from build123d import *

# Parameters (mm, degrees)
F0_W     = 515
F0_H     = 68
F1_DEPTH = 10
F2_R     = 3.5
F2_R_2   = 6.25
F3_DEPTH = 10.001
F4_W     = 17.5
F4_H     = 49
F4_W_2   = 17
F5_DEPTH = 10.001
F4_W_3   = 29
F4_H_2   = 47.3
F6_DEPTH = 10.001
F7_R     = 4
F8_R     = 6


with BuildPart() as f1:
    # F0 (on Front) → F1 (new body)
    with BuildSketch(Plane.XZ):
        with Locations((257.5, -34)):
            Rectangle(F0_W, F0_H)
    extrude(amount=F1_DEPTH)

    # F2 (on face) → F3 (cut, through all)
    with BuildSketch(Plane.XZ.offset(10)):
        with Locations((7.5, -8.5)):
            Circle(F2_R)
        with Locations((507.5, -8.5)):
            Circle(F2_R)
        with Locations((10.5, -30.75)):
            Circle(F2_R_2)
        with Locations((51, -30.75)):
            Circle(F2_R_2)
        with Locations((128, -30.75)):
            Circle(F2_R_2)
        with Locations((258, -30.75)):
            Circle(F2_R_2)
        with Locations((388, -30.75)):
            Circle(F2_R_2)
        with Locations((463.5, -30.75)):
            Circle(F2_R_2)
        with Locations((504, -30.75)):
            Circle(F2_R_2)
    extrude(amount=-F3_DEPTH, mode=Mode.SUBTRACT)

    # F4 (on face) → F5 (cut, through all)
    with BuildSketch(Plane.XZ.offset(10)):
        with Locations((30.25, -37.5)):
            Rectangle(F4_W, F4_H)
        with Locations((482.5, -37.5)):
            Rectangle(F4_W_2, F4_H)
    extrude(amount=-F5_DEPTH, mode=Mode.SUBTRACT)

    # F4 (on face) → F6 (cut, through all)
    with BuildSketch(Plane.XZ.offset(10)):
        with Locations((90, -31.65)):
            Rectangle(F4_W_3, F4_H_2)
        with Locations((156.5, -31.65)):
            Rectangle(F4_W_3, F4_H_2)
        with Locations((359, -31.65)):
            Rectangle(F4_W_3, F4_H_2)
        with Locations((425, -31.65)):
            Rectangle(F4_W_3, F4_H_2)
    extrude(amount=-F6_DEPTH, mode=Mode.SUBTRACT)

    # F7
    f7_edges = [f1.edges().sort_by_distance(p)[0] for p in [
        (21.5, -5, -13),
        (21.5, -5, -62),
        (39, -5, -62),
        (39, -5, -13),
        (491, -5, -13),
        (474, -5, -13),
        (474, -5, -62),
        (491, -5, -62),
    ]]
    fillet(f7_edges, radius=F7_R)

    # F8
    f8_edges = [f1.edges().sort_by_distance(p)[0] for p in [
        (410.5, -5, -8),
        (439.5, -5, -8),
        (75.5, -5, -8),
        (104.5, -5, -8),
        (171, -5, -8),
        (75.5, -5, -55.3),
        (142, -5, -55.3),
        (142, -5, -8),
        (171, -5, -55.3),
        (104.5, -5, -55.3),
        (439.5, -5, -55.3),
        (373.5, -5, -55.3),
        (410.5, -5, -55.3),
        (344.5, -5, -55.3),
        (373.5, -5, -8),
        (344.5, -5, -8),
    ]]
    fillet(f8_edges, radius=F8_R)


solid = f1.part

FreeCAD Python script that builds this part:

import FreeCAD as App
import Part
import Sketcher
from FreeCAD import Vector


def edges_at(feature, points):
    """Names of the edges that pass closest to the given points."""
    edges = feature.Shape.Edges
    near = lambda p: min(range(len(edges)), key=lambda i: edges[i].distToShape(Part.Vertex(*p))[0])
    return sorted({f"Edge{near(p) + 1}" for p in points})

doc = App.newDocument("Part")
body = doc.addObject("PartDesign::Body", "Body")

# Sketch on XZ plane
sketch1 = body.newObject("Sketcher::SketchObject", "Sketch")
sketch1.AttachmentSupport = (doc.getObject("XZ_Plane"), [""])
sketch1.MapMode = "FlatFace"
sketch1.addGeometry([
    Part.LineSegment(Vector(0, 0, 0), Vector(0, -68, 0)),
    Part.LineSegment(Vector(0, -68, 0), Vector(515, -68, 0)),
    Part.LineSegment(Vector(515, -68, 0), Vector(515, 0, 0)),
    Part.LineSegment(Vector(515, 0, 0), Vector(0, 0, 0)),
], False)
sketch1.addConstraint([
    Sketcher.Constraint("Coincident", 0, 2, 1, 1),
    Sketcher.Constraint("Coincident", 1, 2, 2, 1),
    Sketcher.Constraint("Coincident", 2, 2, 3, 1),
    Sketcher.Constraint("Coincident", 3, 2, 0, 1),
    Sketcher.Constraint("Vertical", 0),
    Sketcher.Constraint("Horizontal", 1),
    Sketcher.Constraint("Vertical", 2),
    Sketcher.Constraint("Horizontal", 3),
    Sketcher.Constraint("Coincident", 3, 2, -1, 1),
    Sketcher.Constraint("DistanceX", 1, 1, 1, 2, 515.0),
    Sketcher.Constraint("DistanceY", 0, 2, 0, 1, 68.0),
])
pad1 = body.newObject("PartDesign::Pad", "Pad")
pad1.Profile = sketch1
pad1.Length = 10

# Sketch on XZ plane
sketch2 = body.newObject("Sketcher::SketchObject", "Sketch001")
sketch2.AttachmentSupport = (doc.getObject("XZ_Plane"), [""])
sketch2.MapMode = "FlatFace"
sketch2.AttachmentOffset = App.Placement(Vector(0, 0, 10), App.Rotation())
sketch2.addGeometry([
    Part.Circle(Vector(7.5, -8.5, 0), Vector(0, 0, 1), 3.5),  # 0
    Part.Circle(Vector(507.5, -8.5, 0), Vector(0, 0, 1), 3.5),  # 1
    Part.Circle(Vector(10.5, -30.8, 0), Vector(0, 0, 1), 6.2),  # 2
    Part.Circle(Vector(51, -30.8, 0), Vector(0, 0, 1), 6.2),  # 3
    Part.Circle(Vector(128, -30.8, 0), Vector(0, 0, 1), 6.2),  # 4
    Part.Circle(Vector(258, -30.8, 0), Vector(0, 0, 1), 6.2),  # 5
    Part.Circle(Vector(388, -30.8, 0), Vector(0, 0, 1), 6.2),  # 6
    Part.Circle(Vector(463.5, -30.8, 0), Vector(0, 0, 1), 6.2),  # 7
    Part.Circle(Vector(504, -30.8, 0), Vector(0, 0, 1), 6.2),  # 8
], False)
sketch2.addConstraint([
    Sketcher.Constraint("Equal", 0, 1),
    Sketcher.Constraint("Equal", 2, 3),
    Sketcher.Constraint("Equal", 3, 4),
    Sketcher.Constraint("Equal", 4, 5),
    Sketcher.Constraint("Equal", 5, 6),
    Sketcher.Constraint("Equal", 6, 7),
    Sketcher.Constraint("Equal", 7, 8),
    Sketcher.Constraint("Horizontal", 0, 3, 1, 3),
    Sketcher.Constraint("Horizontal", 2, 3, 3, 3),
    Sketcher.Constraint("Horizontal", 3, 3, 4, 3),
    Sketcher.Constraint("Horizontal", 4, 3, 5, 3),
    Sketcher.Constraint("Horizontal", 5, 3, 6, 3),
    Sketcher.Constraint("Horizontal", 6, 3, 7, 3),
    Sketcher.Constraint("Horizontal", 7, 3, 8, 3),
    Sketcher.Constraint("Diameter", 0, 7.0),
    Sketcher.Constraint("Diameter", 2, 12.5),
    Sketcher.Constraint("DistanceX", -1, 1, 3, 3, 51.0),
    Sketcher.Constraint("DistanceX", -1, 1, 4, 3, 128.0),
    Sketcher.Constraint("DistanceX", -1, 1, 5, 3, 258.0),
    Sketcher.Constraint("DistanceX", -1, 1, 6, 3, 388.0),
    Sketcher.Constraint("DistanceX", -1, 1, 8, 3, 504.0),
    Sketcher.Constraint("DistanceX", 0, 3, 1, 3, 500.0),
    Sketcher.Constraint("DistanceX", 0, 3, 2, 3, 3.0),
    Sketcher.Constraint("DistanceX", 7, 3, 1, 3, 44.0),
    Sketcher.Constraint("DistanceX", -1, 1, 0, 3, 7.5),
    Sketcher.Constraint("DistanceY", 0, 3, -1, 1, 8.5),
    Sketcher.Constraint("DistanceY", 2, 3, -1, 1, 30.75),
])
pocket1 = body.newObject("PartDesign::Pocket", "Pocket")
pocket1.Profile = sketch2
pocket1.Type = "ThroughAll"

# Sketch on XZ plane
sketch3 = body.newObject("Sketcher::SketchObject", "Sketch002")
sketch3.AttachmentSupport = (doc.getObject("XZ_Plane"), [""])
sketch3.MapMode = "FlatFace"
sketch3.AttachmentOffset = App.Placement(Vector(0, 0, 10), App.Rotation())
sketch3.addGeometry([
    Part.LineSegment(Vector(22, -13, 0), Vector(22, -62, 0)),  # 0
    Part.LineSegment(Vector(22, -62, 0), Vector(39, -62, 0)),  # 1
    Part.LineSegment(Vector(39, -62, 0), Vector(39, -13, 0)),  # 2
    Part.LineSegment(Vector(39, -13, 0), Vector(22, -13, 0)),  # 3
    Part.LineSegment(Vector(474, -13, 0), Vector(474, -62, 0)),  # 4
    Part.LineSegment(Vector(474, -62, 0), Vector(491, -62, 0)),  # 5
    Part.LineSegment(Vector(491, -62, 0), Vector(491, -13, 0)),  # 6
    Part.LineSegment(Vector(491, -13, 0), Vector(474, -13, 0)),  # 7
], False)
sketch3.addConstraint([
    Sketcher.Constraint("Coincident", 0, 2, 1, 1),
    Sketcher.Constraint("Coincident", 1, 2, 2, 1),
    Sketcher.Constraint("Coincident", 2, 2, 3, 1),
    Sketcher.Constraint("Coincident", 3, 2, 0, 1),
    Sketcher.Constraint("Coincident", 4, 2, 5, 1),
    Sketcher.Constraint("Coincident", 5, 2, 6, 1),
    Sketcher.Constraint("Coincident", 6, 2, 7, 1),
    Sketcher.Constraint("Coincident", 7, 2, 4, 1),
    Sketcher.Constraint("Vertical", 0),
    Sketcher.Constraint("Horizontal", 1),
    Sketcher.Constraint("Vertical", 2),
    Sketcher.Constraint("Horizontal", 3),
    Sketcher.Constraint("Vertical", 4),
    Sketcher.Constraint("Horizontal", 5),
    Sketcher.Constraint("Vertical", 6),
    Sketcher.Constraint("Horizontal", 7),
    Sketcher.Constraint("Horizontal", 1, 2, 4, 2),
    Sketcher.Constraint("Horizontal", 3, 2, 6, 2),
    Sketcher.Constraint("DistanceX", 5, 1, 5, 2, 17.0),
    Sketcher.Constraint("DistanceY", 0, 2, 0, 1, 49.0),
    Sketcher.Constraint("DistanceX", 1, 1, 1, 2, 17.5),
    Sketcher.Constraint("DistanceY", 0, 2, -1, 1, 62.0),
    Sketcher.Constraint("DistanceX", -1, 1, 1, 2, 39.0),
    Sketcher.Constraint("DistanceX", -1, 1, 4, 2, 474.0),
])
pocket2 = body.newObject("PartDesign::Pocket", "Pocket001")
pocket2.Profile = sketch3
pocket2.Type = "ThroughAll"

# Sketch on XZ plane
sketch4 = body.newObject("Sketcher::SketchObject", "Sketch003")
sketch4.AttachmentSupport = (doc.getObject("XZ_Plane"), [""])
sketch4.MapMode = "FlatFace"
sketch4.AttachmentOffset = App.Placement(Vector(0, 0, 10), App.Rotation())
sketch4.addGeometry([
    Part.LineSegment(Vector(76, -8, 0), Vector(76, -55, 0)),  # 0
    Part.LineSegment(Vector(76, -55, 0), Vector(104, -55, 0)),  # 1
    Part.LineSegment(Vector(104, -55, 0), Vector(104, -8, 0)),  # 2
    Part.LineSegment(Vector(104, -8, 0), Vector(76, -8, 0)),  # 3
    Part.LineSegment(Vector(142, -8, 0), Vector(142, -55, 0)),  # 4
    Part.LineSegment(Vector(142, -55, 0), Vector(171, -55, 0)),  # 5
    Part.LineSegment(Vector(171, -55, 0), Vector(171, -8, 0)),  # 6
    Part.LineSegment(Vector(171, -8, 0), Vector(142, -8, 0)),  # 7
    Part.LineSegment(Vector(344, -8, 0), Vector(344, -55, 0)),  # 8
    Part.LineSegment(Vector(344, -55, 0), Vector(374, -55, 0)),  # 9
    Part.LineSegment(Vector(374, -55, 0), Vector(374, -8, 0)),  # 10
    Part.LineSegment(Vector(374, -8, 0), Vector(344, -8, 0)),  # 11
    Part.LineSegment(Vector(410, -8, 0), Vector(410, -55, 0)),  # 12
    Part.LineSegment(Vector(410, -55, 0), Vector(440, -55, 0)),  # 13
    Part.LineSegment(Vector(440, -55, 0), Vector(440, -8, 0)),  # 14
    Part.LineSegment(Vector(440, -8, 0), Vector(410, -8, 0)),  # 15
], False)
sketch4.addConstraint([
    Sketcher.Constraint("Coincident", 0, 2, 1, 1),
    Sketcher.Constraint("Coincident", 1, 2, 2, 1),
    Sketcher.Constraint("Coincident", 2, 2, 3, 1),
    Sketcher.Constraint("Coincident", 3, 2, 0, 1),
    Sketcher.Constraint("Coincident", 4, 2, 5, 1),
    Sketcher.Constraint("Coincident", 5, 2, 6, 1),
    Sketcher.Constraint("Coincident", 6, 2, 7, 1),
    Sketcher.Constraint("Coincident", 7, 2, 4, 1),
    Sketcher.Constraint("Coincident", 8, 2, 9, 1),
    Sketcher.Constraint("Coincident", 9, 2, 10, 1),
    Sketcher.Constraint("Coincident", 10, 2, 11, 1),
    Sketcher.Constraint("Coincident", 11, 2, 8, 1),
    Sketcher.Constraint("Coincident", 12, 2, 13, 1),
    Sketcher.Constraint("Coincident", 13, 2, 14, 1),
    Sketcher.Constraint("Coincident", 14, 2, 15, 1),
    Sketcher.Constraint("Coincident", 15, 2, 12, 1),
    Sketcher.Constraint("Vertical", 0),
    Sketcher.Constraint("Horizontal", 1),
    Sketcher.Constraint("Vertical", 2),
    Sketcher.Constraint("Horizontal", 3),
    Sketcher.Constraint("Vertical", 4),
    Sketcher.Constraint("Horizontal", 5),
    Sketcher.Constraint("Vertical", 6),
    Sketcher.Constraint("Horizontal", 7),
    Sketcher.Constraint("Vertical", 8),
    Sketcher.Constraint("Horizontal", 9),
    Sketcher.Constraint("Vertical", 10),
    Sketcher.Constraint("Horizontal", 11),
    Sketcher.Constraint("Vertical", 12),
    Sketcher.Constraint("Horizontal", 13),
    Sketcher.Constraint("Vertical", 14),
    Sketcher.Constraint("Horizontal", 15),
    Sketcher.Constraint("Horizontal", 1, 2, 4, 2),
    Sketcher.Constraint("Horizontal", 3, 2, 6, 2),
    Sketcher.Constraint("Horizontal", 5, 2, 8, 2),
    Sketcher.Constraint("Horizontal", 7, 2, 10, 2),
    Sketcher.Constraint("Horizontal", 9, 2, 12, 2),
    Sketcher.Constraint("Horizontal", 11, 2, 14, 2),
    Sketcher.Constraint("Equal", 3, 5),
    Sketcher.Constraint("Equal", 7, 9),
    Sketcher.Constraint("Equal", 11, 13),
    Sketcher.Constraint("DistanceX", 1, 1, 1, 2, 29.0),
    Sketcher.Constraint("DistanceY", 0, 2, 0, 1, 47.3),
    Sketcher.Constraint("DistanceY", 2, 2, -1, 1, 8.0),
    Sketcher.Constraint("DistanceX", -1, 1, 4, 2, 142.0),
    Sketcher.Constraint("DistanceX", 1, 2, 8, 2, 240.0),
    Sketcher.Constraint("DistanceX", 9, 2, 12, 2, 37.0),
    Sketcher.Constraint("DistanceX", -1, 1, 0, 2, 75.5),
])
pocket3 = body.newObject("PartDesign::Pocket", "Pocket002")
pocket3.Profile = sketch4
pocket3.Type = "ThroughAll"
doc.recompute()

fillet = body.newObject("PartDesign::Fillet", "Fillet")
fillet.Base = (pocket3, edges_at(pocket3, [
    (21.5, -5, -13),
    (21.5, -5, -62),
    (39, -5, -62),
    (39, -5, -13),
    (491, -5, -13),
    (474, -5, -13),
    (474, -5, -62),
    (491, -5, -62),
]))
fillet.Radius = 4
doc.recompute()

fillet2 = body.newObject("PartDesign::Fillet", "Fillet001")
fillet2.Base = (fillet, edges_at(fillet, [
    (410.5, -5, -8),
    (439.5, -5, -8),
    (75.5, -5, -8),
    (104.5, -5, -8),
    (171, -5, -8),
    (75.5, -5, -55.3),
    (142, -5, -55.3),
    (142, -5, -8),
    (171, -5, -55.3),
    (104.5, -5, -55.3),
    (439.5, -5, -55.3),
    (373.5, -5, -55.3),
    (410.5, -5, -55.3),
    (344.5, -5, -55.3),
    (373.5, -5, -8),
    (344.5, -5, -8),
]))
fillet2.Radius = 6

doc.recompute()
